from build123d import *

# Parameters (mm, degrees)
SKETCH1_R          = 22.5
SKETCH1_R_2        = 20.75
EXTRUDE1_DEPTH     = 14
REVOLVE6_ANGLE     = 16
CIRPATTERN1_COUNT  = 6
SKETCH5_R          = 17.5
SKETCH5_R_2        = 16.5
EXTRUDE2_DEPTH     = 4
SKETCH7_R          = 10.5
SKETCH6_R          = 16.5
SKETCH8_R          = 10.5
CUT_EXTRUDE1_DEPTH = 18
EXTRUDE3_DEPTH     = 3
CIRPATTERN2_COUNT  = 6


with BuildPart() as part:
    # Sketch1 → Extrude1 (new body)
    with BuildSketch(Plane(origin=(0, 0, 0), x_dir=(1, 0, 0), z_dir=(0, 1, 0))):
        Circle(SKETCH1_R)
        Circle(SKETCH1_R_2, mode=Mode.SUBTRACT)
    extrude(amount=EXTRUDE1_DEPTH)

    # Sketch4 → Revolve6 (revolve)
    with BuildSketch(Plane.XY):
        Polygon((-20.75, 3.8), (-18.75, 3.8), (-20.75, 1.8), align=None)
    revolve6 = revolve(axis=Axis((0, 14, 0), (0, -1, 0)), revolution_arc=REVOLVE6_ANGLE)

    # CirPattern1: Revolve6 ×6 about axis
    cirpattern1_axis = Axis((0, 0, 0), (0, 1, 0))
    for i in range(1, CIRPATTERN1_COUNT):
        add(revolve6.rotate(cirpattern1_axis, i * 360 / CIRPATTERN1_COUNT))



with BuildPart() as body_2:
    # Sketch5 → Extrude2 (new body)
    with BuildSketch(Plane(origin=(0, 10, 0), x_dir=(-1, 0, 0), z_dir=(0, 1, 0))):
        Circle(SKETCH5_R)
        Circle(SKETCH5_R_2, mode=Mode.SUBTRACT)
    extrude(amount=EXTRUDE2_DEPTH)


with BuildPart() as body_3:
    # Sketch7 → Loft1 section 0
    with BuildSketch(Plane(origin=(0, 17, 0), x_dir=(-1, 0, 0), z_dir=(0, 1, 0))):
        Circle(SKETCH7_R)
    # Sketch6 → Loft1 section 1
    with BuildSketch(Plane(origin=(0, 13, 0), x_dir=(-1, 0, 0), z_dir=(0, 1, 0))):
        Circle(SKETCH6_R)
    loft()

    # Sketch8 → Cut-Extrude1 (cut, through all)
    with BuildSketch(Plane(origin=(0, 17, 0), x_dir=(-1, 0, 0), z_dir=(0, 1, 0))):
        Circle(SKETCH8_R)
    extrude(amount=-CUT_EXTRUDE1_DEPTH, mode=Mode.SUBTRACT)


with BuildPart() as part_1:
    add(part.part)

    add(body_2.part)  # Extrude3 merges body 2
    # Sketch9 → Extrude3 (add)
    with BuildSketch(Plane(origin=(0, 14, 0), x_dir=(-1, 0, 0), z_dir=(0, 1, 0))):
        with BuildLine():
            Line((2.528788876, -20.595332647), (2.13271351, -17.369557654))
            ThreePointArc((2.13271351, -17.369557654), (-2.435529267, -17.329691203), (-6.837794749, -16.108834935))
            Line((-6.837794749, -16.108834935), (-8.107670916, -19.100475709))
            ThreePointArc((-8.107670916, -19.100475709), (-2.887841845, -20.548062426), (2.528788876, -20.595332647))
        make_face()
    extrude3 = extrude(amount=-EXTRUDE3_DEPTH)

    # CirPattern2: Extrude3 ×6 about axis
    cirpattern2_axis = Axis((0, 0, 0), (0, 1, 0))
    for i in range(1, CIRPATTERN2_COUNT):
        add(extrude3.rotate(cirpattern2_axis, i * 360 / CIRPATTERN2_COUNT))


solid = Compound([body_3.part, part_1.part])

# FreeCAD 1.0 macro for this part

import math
import FreeCAD as App
import Part
import Sketcher
Q = App.Units.Quantity


def add_polygon(sketch, points):
    """Adds a closed chain of lines whose ends are joined by coincident constraints."""
    first, n = sketch.GeometryCount, len(points)
    for a, b in zip(points, points[1:] + points[:1]):
        sketch.addGeometry(Part.LineSegment(App.Vector(*a, 0), App.Vector(*b, 0)), False)
    for i in range(n):
        sketch.addConstraint(Sketcher.Constraint("Coincident", first + i, 2, first + (i + 1) % n, 1))

doc = App.newDocument("Part")
body = doc.addObject("PartDesign::Body", "Body")

sketch1 = body.newObject("Sketcher::SketchObject", "Sketch")
sketch1.AttachmentSupport = (doc.getObject("XZ_Plane"), [""])
sketch1.MapMode = "FlatFace"
sketch1.addGeometry([
    Part.Circle(App.Vector(0, 0, 0), App.Vector(0, 0, 1), 22),
    Part.Circle(App.Vector(0, 0, 0), App.Vector(0, 0, 1), 21),
], False)
sketch1.addConstraint([
    Sketcher.Constraint("Coincident", 0, 3, -1, 1),
    Sketcher.Constraint("Coincident", 1, 3, -1, 1),
    Sketcher.Constraint("Diameter", 0, Q("45 mm")),
    Sketcher.Constraint("Diameter", 1, Q("41.5 mm")),
])
pad1 = body.newObject("PartDesign::Pad", "Pad")
pad1.Profile = sketch1
pad1.Length = 14
pad1.Reversed = True

sketch2 = body.newObject("Sketcher::SketchObject", "Sketch001")
sketch2.AttachmentSupport = (doc.getObject("XY_Plane"), [""])
sketch2.MapMode = "FlatFace"
add_polygon(sketch2, [(-18.8, 3.8), (-20.8, 3.8), (-20.8, 1.8)])
sketch2.addConstraint([
    Sketcher.Constraint("Horizontal", 0),
    Sketcher.Constraint("Vertical", 1),
    Sketcher.Constraint("Equal", 0, 1),
    Sketcher.Constraint("DistanceX", 0, 2, 0, 1, Q("2 mm")),
    Sketcher.Constraint("DistanceY", -1, 1, 0, 2, Q("3.8 mm")),
    Sketcher.Constraint("DistanceX", 0, 2, -1, 1, Q("20.75 mm")),
])
revolution = body.newObject("PartDesign::Revolution", "Revolution")
revolution.Profile = sketch2
revolution.ReferenceAxis = (sketch2, ["V_Axis"])
revolution.Angle = 16
revolution.Reversed = True
doc.recompute()

polarpattern = body.newObject("PartDesign::PolarPattern", "PolarPattern")
polarpattern.Originals = [revolution]
polarpattern.Axis = (doc.getObject("Y_Axis"), [""])
polarpattern.Angle = 360
polarpattern.Occurrences = 6
body.Tip = polarpattern
body2 = doc.addObject("PartDesign::Body", "Body001")

sketch3 = body2.newObject("Sketcher::SketchObject", "Sketch002")
sketch3.AttachmentSupport = (doc.getObject("XZ_Plane001"), [""])
sketch3.MapMode = "FlatFace"
sketch3.AttachmentOffset = App.Placement(App.Vector(0, 0, -10), App.Rotation())
sketch3.addGeometry([
    Part.Circle(App.Vector(0, 0, 0), App.Vector(0, 0, 1), 18),
    Part.Circle(App.Vector(0, 0, 0), App.Vector(0, 0, 1), 16),
], False)
sketch3.addConstraint([
    Sketcher.Constraint("Coincident", 0, 3, -1, 1),
    Sketcher.Constraint("Coincident", 1, 3, -1, 1),
    Sketcher.Constraint("Diameter", 0, Q("35 mm")),
    Sketcher.Constraint("Diameter", 1, Q("33 mm")),
])
pad2 = body2.newObject("PartDesign::Pad", "Pad001")
pad2.Profile = sketch3
pad2.Length = 4
pad2.Reversed = True
body3 = doc.addObject("PartDesign::Body", "Body002")

sketch4 = body3.newObject("Sketcher::SketchObject", "Sketch003")
sketch4.AttachmentSupport = (doc.getObject("XZ_Plane002"), [""])
sketch4.MapMode = "FlatFace"
sketch4.AttachmentOffset = App.Placement(App.Vector(0, 0, -17), App.Rotation())
sketch4.addGeometry(Part.Circle(App.Vector(0, 0, 0), App.Vector(0, 0, 1), 10), False)
sketch4.addConstraint([
    Sketcher.Constraint("Coincident", 0, 3, -1, 1),
    Sketcher.Constraint("Diameter", 0, Q("21 mm")),
])

sketch5 = body3.newObject("Sketcher::SketchObject", "Sketch004")
sketch5.AttachmentSupport = (doc.getObject("XZ_Plane002"), [""])
sketch5.MapMode = "FlatFace"
sketch5.AttachmentOffset = App.Placement(App.Vector(0, 0, -13), App.Rotation())
sketch5.addGeometry(Part.Circle(App.Vector(0, 0, 0), App.Vector(0, 0, 1), 16), False)
sketch5.addConstraint([
    Sketcher.Constraint("Coincident", 0, 3, -1, 1),
    Sketcher.Constraint("Diameter", 0, Q("33 mm")),
])

additiveloft = body3.newObject("PartDesign::AdditiveLoft", "AdditiveLoft")
additiveloft.Profile = sketch4
additiveloft.Sections = [sketch5]

sketch6 = body3.newObject("Sketcher::SketchObject", "Sketch005")
sketch6.AttachmentSupport = (doc.getObject("XZ_Plane002"), [""])
sketch6.MapMode = "FlatFace"
sketch6.AttachmentOffset = App.Placement(App.Vector(0, 0, -17), App.Rotation())
sketch6.addGeometry(Part.Circle(App.Vector(0, 0, 0), App.Vector(0, 0, 1), 10), False)
sketch6.addConstraint([
    Sketcher.Constraint("Coincident", 0, 3, -1, 1),
    Sketcher.Constraint("Diameter", 0, Q("21 mm")),
])
pocket1 = body3.newObject("PartDesign::Pocket", "Pocket")
pocket1.Profile = sketch6
pocket1.Type = "ThroughAll"
pocket1.Reversed = True
body.AllowCompound = True
doc.recompute()

boolean = body.newObject("PartDesign::Boolean", "Boolean")
boolean.Type = "Fuse"
boolean.addObjects([body2])

sketch7 = body.newObject("Sketcher::SketchObject", "Sketch006")
sketch7.AttachmentSupport = (doc.getObject("XZ_Plane"), [""])
sketch7.MapMode = "FlatFace"
sketch7.AttachmentOffset = App.Placement(App.Vector(0, 0, -14), App.Rotation())
sketch7.addGeometry([
    Part.LineSegment(App.Vector(-2.5, -20.6, 0), App.Vector(-2.1, -17.4, 0)),
    Part.ArcOfCircle(Part.Circle(App.Vector(0, 0, 0), App.Vector(0, 0, 1), 17.5), math.radians(-97), math.radians(-67)),
    Part.LineSegment(App.Vector(6.8, -16.1, 0), App.Vector(8.1, -19.1, 0)),
    Part.ArcOfCircle(Part.Circle(App.Vector(0, 0, 0), App.Vector(0, 0, 1), 20.8), math.radians(-97), math.radians(-67)),
], False)
sketch7.addConstraint([
    Sketcher.Constraint("Coincident", 0, 2, 1, 1),
    Sketcher.Constraint("Coincident", 1, 2, 2, 1),
    Sketcher.Constraint("Coincident", 2, 2, 3, 2),
    Sketcher.Constraint("Coincident", 3, 1, 0, 1),
    Sketcher.Constraint("Coincident", 1, 3, -1, 1),
    Sketcher.Constraint("Coincident", 3, 3, -1, 1),
    Sketcher.Constraint("Radius", 1, Q("17.5 mm")),
    Sketcher.Constraint("Angle", 0, Q("83 deg")),
    Sketcher.Constraint("Angle", 2, Q("-67 deg")),
    Sketcher.Constraint("Radius", 3, Q("20.75 mm")),
    Sketcher.Constraint("DistanceX", -1, 1, 2, 2, Q("8.107671 mm")),
    Sketcher.Constraint("DistanceX", 3, 1, -1, 1, Q("2.528789 mm")),
])
pad3 = body.newObject("PartDesign::Pad", "Pad002")
pad3.Profile = sketch7
pad3.Length = 3
doc.recompute()

polarpattern2 = body.newObject("PartDesign::PolarPattern", "PolarPattern001")
polarpattern2.Originals = [pad3]
polarpattern2.Axis = (doc.getObject("Y_Axis"), [""])
polarpattern2.Angle = 360
polarpattern2.Occurrences = 6
body.Tip = polarpattern2

doc.recompute()
